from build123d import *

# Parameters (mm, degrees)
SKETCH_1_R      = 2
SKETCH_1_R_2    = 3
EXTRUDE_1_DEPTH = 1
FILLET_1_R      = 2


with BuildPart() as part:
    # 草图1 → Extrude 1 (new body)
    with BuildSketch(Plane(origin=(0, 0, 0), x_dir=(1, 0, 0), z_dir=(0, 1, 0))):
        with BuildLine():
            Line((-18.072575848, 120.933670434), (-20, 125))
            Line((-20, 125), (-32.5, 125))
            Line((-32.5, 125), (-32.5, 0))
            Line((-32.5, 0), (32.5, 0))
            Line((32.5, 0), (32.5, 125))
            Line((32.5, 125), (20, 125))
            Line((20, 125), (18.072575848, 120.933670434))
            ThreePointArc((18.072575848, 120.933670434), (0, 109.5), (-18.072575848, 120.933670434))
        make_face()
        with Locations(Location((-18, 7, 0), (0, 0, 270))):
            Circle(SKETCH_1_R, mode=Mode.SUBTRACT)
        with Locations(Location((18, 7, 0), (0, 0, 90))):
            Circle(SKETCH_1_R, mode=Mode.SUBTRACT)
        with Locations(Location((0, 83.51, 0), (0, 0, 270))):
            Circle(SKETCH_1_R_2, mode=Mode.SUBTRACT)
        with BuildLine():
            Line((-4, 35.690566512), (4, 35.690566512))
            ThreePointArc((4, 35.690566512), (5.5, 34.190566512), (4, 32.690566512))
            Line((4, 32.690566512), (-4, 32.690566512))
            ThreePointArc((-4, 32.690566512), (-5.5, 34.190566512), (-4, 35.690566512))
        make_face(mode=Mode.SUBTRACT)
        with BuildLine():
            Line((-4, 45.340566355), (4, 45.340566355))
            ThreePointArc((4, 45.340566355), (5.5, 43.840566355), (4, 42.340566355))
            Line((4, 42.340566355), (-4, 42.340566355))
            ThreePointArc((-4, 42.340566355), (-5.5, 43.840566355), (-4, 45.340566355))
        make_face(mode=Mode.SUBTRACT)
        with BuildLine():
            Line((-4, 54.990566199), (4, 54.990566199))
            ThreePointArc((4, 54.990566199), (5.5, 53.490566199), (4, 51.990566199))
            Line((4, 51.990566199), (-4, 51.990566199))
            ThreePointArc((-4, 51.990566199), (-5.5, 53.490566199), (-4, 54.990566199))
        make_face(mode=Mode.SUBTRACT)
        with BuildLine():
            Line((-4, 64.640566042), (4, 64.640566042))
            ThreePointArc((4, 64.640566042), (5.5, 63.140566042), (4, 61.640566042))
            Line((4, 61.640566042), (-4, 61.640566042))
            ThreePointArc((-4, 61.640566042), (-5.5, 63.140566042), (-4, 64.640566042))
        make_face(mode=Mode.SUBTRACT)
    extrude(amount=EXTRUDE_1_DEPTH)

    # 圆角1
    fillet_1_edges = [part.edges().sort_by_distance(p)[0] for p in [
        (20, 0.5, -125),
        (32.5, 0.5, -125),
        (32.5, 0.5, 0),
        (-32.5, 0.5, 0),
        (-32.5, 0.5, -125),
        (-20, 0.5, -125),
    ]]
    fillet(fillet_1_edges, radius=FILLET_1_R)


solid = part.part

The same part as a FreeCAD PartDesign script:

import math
import FreeCAD as App
import Part
import Sketcher


def edges_at(feature, points):
    """Names of the edges that pass closest to the given points."""
    edges = feature.Shape.Edges
    near = lambda p: min(range(len(edges)), key=lambda i: edges[i].distToShape(Part.Vertex(*p))[0])
    return sorted({f"Edge{near(p) + 1}" for p in points})

doc = App.newDocument("Part")
params = doc.addObject("Spreadsheet::Sheet", "Params")
for row, (alias, value) in enumerate([
    ("sketch1_diameter", "4 mm"),
    ("sketch1_diameter2", "6 mm"),
    ("sketch1_radius", "20 mm"),
    ("sketch1_radius2", "1.5 mm"),
    ("sketch1_width", "65 mm"),
    ("pad1_length", "1 mm"),
    ("fillet_radius", "2 mm"),
], start=1):
    params.set(f"A{row}", alias)
    params.set(f"B{row}", "=" + value)
    params.setAlias(f"B{row}", alias)

body = doc.addObject("PartDesign::Body", "Body")

# Sketch on XZ plane
sketch1 = doc.addObject("Sketcher::SketchObject", "Sketch")
body.addObject(sketch1)
sketch1.AttachmentSupport = (doc.XZ_Plane, [""])
sketch1.MapMode = "FlatFace"
sketch1.addGeometry(Part.LineSegment(App.Vector(-18.1, -120.9, 0), App.Vector(-20, -125, 0)), False)
sketch1.addGeometry(Part.LineSegment(App.Vector(-20, -125, 0), App.Vector(-32.5, -125, 0)), False)
sketch1.addGeometry(Part.LineSegment(App.Vector(-32.5, -125, 0), App.Vector(-32.5, 0, 0)), False)
sketch1.addGeometry(Part.LineSegment(App.Vector(-32.5, 0, 0), App.Vector(32.5, 0, 0)), False)
sketch1.addGeometry(Part.LineSegment(App.Vector(32.5, 0, 0), App.Vector(32.5, -125, 0)), False)
sketch1.addGeometry(Part.LineSegment(App.Vector(32.5, -125, 0), App.Vector(20, -125, 0)), False)
sketch1.addGeometry(Part.LineSegment(App.Vector(20, -125, 0), App.Vector(18.1, -120.9, 0)), False)
sketch1.addGeometry(Part.ArcOfCircle(Part.Circle(App.Vector(0, -129.5, 0), App.Vector(0, 0, 1), 20), math.radians(25), math.radians(155)), False)
sketch1.addGeometry(Part.Circle(App.Vector(-18, -7, 0), App.Vector(0, 0, 1), 2), False)
sketch1.addGeometry(Part.Circle(App.Vector(18, -7, 0), App.Vector(0, 0, 1), 2), False)
sketch1.addGeometry(Part.ArcOfCircle(Part.Circle(App.Vector(-4, -34.2, 0), App.Vector(0, 0, 1), 1.5), math.radians(90), math.radians(270)), False)
sketch1.addGeometry(Part.LineSegment(App.Vector(-4, -35.7, 0), App.Vector(4, -35.7, 0)), False)
sketch1.addGeometry(Part.ArcOfCircle(Part.Circle(App.Vector(4, -34.2, 0), App.Vector(0, 0, 1), 1.5), math.radians(-90), math.radians(90)), False)
sketch1.addGeometry(Part.LineSegment(App.Vector(4, -32.7, 0), App.Vector(-4, -32.7, 0)), False)
sketch1.addGeometry(Part.ArcOfCircle(Part.Circle(App.Vector(-4, -43.8, 0), App.Vector(0, 0, 1), 1.5), math.radians(90), math.radians(270)), False)
sketch1.addGeometry(Part.LineSegment(App.Vector(-4, -45.3, 0), App.Vector(4, -45.3, 0)), False)
sketch1.addGeometry(Part.ArcOfCircle(Part.Circle(App.Vector(4, -43.8, 0), App.Vector(0, 0, 1), 1.5), math.radians(-90), math.radians(90)), False)
sketch1.addGeometry(Part.LineSegment(App.Vector(4, -42.3, 0), App.Vector(-4, -42.3, 0)), False)
sketch1.addGeometry(Part.ArcOfCircle(Part.Circle(App.Vector(-4, -53.5, 0), App.Vector(0, 0, 1), 1.5), math.radians(90), math.radians(270)), False)
sketch1.addGeometry(Part.LineSegment(App.Vector(-4, -55, 0), App.Vector(4, -55, 0)), False)
sketch1.addGeometry(Part.ArcOfCircle(Part.Circle(App.Vector(4, -53.5, 0), App.Vector(0, 0, 1), 1.5), math.radians(-90), math.radians(90)), False)
sketch1.addGeometry(Part.LineSegment(App.Vector(4, -52, 0), App.Vector(-4, -52, 0)), False)
sketch1.addGeometry(Part.ArcOfCircle(Part.Circle(App.Vector(-4, -63.1, 0), App.Vector(0, 0, 1), 1.5), math.radians(90), math.radians(270)), False)
sketch1.addGeometry(Part.LineSegment(App.Vector(-4, -64.6, 0), App.Vector(4, -64.6, 0)), False)
sketch1.addGeometry(Part.ArcOfCircle(Part.Circle(App.Vector(4, -63.1, 0), App.Vector(0, 0, 1), 1.5), math.radians(-90), math.radians(90)), False)
sketch1.addGeometry(Part.LineSegment(App.Vector(4, -61.6, 0), App.Vector(-4, -61.6, 0)), False)
sketch1.addGeometry(Part.Circle(App.Vector(0, -83.5, 0), App.Vector(0, 0, 1), 3), False)
sketch1.addConstraint(Sketcher.Constraint("Coincident", 0, 2, 1, 1))
sketch1.addConstraint(Sketcher.Constraint("Coincident", 1, 2, 2, 1))
sketch1.addConstraint(Sketcher.Constraint("Coincident", 2, 2, 3, 1))
sketch1.addConstraint(Sketcher.Constraint("Coincident", 3, 2, 4, 1))
sketch1.addConstraint(Sketcher.Constraint("Coincident", 4, 2, 5, 1))
sketch1.addConstraint(Sketcher.Constraint("Coincident", 5, 2, 6, 1))
sketch1.addConstraint(Sketcher.Constraint("Tangent", 6, 2, 7, 1))
sketch1.addConstraint(Sketcher.Constraint("Tangent", 7, 2, 0, 1))
sketch1.addConstraint(Sketcher.Constraint("Tangent", 10, 2, 11, 1))
sketch1.addConstraint(Sketcher.Constraint("Tangent", 11, 2, 12, 1))
sketch1.addConstraint(Sketcher.Constraint("Tangent", 12, 2, 13, 1))
sketch1.addConstraint(Sketcher.Constraint("Tangent", 13, 2, 10, 1))
sketch1.addConstraint(Sketcher.Constraint("Tangent", 14, 2, 15, 1))
sketch1.addConstraint(Sketcher.Constraint("Tangent", 15, 2, 16, 1))
sketch1.addConstraint(Sketcher.Constraint("Tangent", 16, 2, 17, 1))
sketch1.addConstraint(Sketcher.Constraint("Tangent", 17, 2, 14, 1))
sketch1.addConstraint(Sketcher.Constraint("Tangent", 18, 2, 19, 1))
sketch1.addConstraint(Sketcher.Constraint("Tangent", 19, 2, 20, 1))
sketch1.addConstraint(Sketcher.Constraint("Tangent", 20, 2, 21, 1))
sketch1.addConstraint(Sketcher.Constraint("Tangent", 21, 2, 18, 1))
sketch1.addConstraint(Sketcher.Constraint("Tangent", 22, 2, 23, 1))
sketch1.addConstraint(Sketcher.Constraint("Tangent", 23, 2, 24, 1))
sketch1.addConstraint(Sketcher.Constraint("Tangent", 24, 2, 25, 1))
sketch1.addConstraint(Sketcher.Constraint("Tangent", 25, 2, 22, 1))
sketch1.addConstraint(Sketcher.Constraint("Horizontal", 1))
sketch1.addConstraint(Sketcher.Constraint("Vertical", 2))
sketch1.addConstraint(Sketcher.Constraint("Horizontal", 3))
sketch1.addConstraint(Sketcher.Constraint("Vertical", 4))
sketch1.addConstraint(Sketcher.Constraint("Horizontal", 5))
sketch1.addConstraint(Sketcher.Constraint("Horizontal", 11))
sketch1.addConstraint(Sketcher.Constraint("Horizontal", 13))
sketch1.addConstraint(Sketcher.Constraint("Horizontal", 15))
sketch1.addConstraint(Sketcher.Constraint("Horizontal", 17))
sketch1.addConstraint(Sketcher.Constraint("Horizontal", 19))
sketch1.addConstraint(Sketcher.Constraint("Horizontal", 21))
sketch1.addConstraint(Sketcher.Constraint("Horizontal", 23))
sketch1.addConstraint(Sketcher.Constraint("Horizontal", 25))
sketch1.addConstraint(Sketcher.Constraint("Equal", 8, 9))
sketch1.addConstraint(Sketcher.Constraint("Equal", 12, 14))
sketch1.addConstraint(Sketcher.Constraint("Equal", 16, 18))
sketch1.addConstraint(Sketcher.Constraint("Equal", 20, 22))
sketch1.addConstraint(Sketcher.Constraint("Symmetric", 2, 2, 3, 2, -1, 1))
sketch1.addConstraint(Sketcher.Constraint("Symmetric", 8, 3, 9, 3, -2))
sketch1.addConstraint(Sketcher.Constraint("Symmetric", 0, 2, 5, 2, -2))
sketch1.addConstraint(Sketcher.Constraint("PointOnObject", 7, 3, -2))
sketch1.addConstraint(Sketcher.Constraint("PointOnObject", 26, 3, -2))
sketch1.addConstraint(Sketcher.Constraint("Vertical", 10, 3, 14, 3))
sketch1.addConstraint(Sketcher.Constraint("Vertical", 12, 3, 16, 3))
sketch1.addConstraint(Sketcher.Constraint("Vertical", 14, 3, 18, 3))
sketch1.addConstraint(Sketcher.Constraint("Vertical", 16, 3, 20, 3))
sketch1.addConstraint(Sketcher.Constraint("Vertical", 18, 3, 22, 3))
sketch1.addConstraint(Sketcher.Constraint("Vertical", 20, 3, 24, 3))
sketch1.addConstraint(Sketcher.Constraint("Diameter", 8, 4.0))
sketch1.addConstraint(Sketcher.Constraint("Diameter", 26, 6.0))
sketch1.addConstraint(Sketcher.Constraint("Radius", 7, 20.0))
sketch1.addConstraint(Sketcher.Constraint("Radius", 10, 1.5))
sketch1.addConstraint(Sketcher.Constraint("DistanceX", 3, 1, 3, 2, 65.0))
sketch1.addConstraint(Sketcher.Constraint("DistanceX", 11, 1, 11, 2, 8.0))
sketch1.addConstraint(Sketcher.Constraint("DistanceY", 2, 1, 2, 2, 125.0))
sketch1.addConstraint(Sketcher.Constraint("DistanceX", 1, 2, 1, 1, 12.5))
sketch1.addConstraint(Sketcher.Constraint("DistanceX", 8, 3, -1, 1, 18.0))
sketch1.addConstraint(Sketcher.Constraint("DistanceY", 8, 3, -1, 1, 7.0))
sketch1.addConstraint(Sketcher.Constraint("DistanceX", 10, 3, -1, 1, 4.0))
sketch1.addConstraint(Sketcher.Constraint("Distance", 0, 4.5))
sketch1.addConstraint(Sketcher.Constraint("DistanceY", 18, 3, 10, 3, 19.3))
sketch1.addConstraint(Sketcher.Constraint("DistanceY", 22, 3, 14, 3, 19.3))
sketch1.addConstraint(Sketcher.Constraint("DistanceY", 26, 3, -1, 1, 83.51))
sketch1.addConstraint(Sketcher.Constraint("DistanceY", 14, 3, 10, 3, 9.65))
sketch1.addConstraint(Sketcher.Constraint("DistanceY", 10, 3, -1, 1, 34.190567))
sketch1.setExpression("Constraints[52]", "Params.sketch1_diameter")
sketch1.setExpression("Constraints[53]", "Params.sketch1_diameter2")
sketch1.setExpression("Constraints[54]", "Params.sketch1_radius")
sketch1.setExpression("Constraints[55]", "Params.sketch1_radius2")
sketch1.setExpression("Constraints[56]", "Params.sketch1_width")
pad1 = doc.addObject("PartDesign::Pad", "Pad")
body.addObject(pad1)
pad1.Profile = sketch1
pad1.setExpression("Length", "Params.pad1_length")
pad1.Reversed = True
doc.recompute()

fillet = doc.addObject("PartDesign::Fillet", "Fillet")
body.addObject(fillet)
fillet.Base = (pad1, edges_at(pad1, [
    (20, 0.5, -125),
    (32.5, 0.5, -125),
    (32.5, 0.5, 0),
    (-32.5, 0.5, 0),
    (-32.5, 0.5, -125),
    (-20, 0.5, -125),
]))
fillet.setExpression("Radius", "Params.fillet_radius")

doc.recompute()
